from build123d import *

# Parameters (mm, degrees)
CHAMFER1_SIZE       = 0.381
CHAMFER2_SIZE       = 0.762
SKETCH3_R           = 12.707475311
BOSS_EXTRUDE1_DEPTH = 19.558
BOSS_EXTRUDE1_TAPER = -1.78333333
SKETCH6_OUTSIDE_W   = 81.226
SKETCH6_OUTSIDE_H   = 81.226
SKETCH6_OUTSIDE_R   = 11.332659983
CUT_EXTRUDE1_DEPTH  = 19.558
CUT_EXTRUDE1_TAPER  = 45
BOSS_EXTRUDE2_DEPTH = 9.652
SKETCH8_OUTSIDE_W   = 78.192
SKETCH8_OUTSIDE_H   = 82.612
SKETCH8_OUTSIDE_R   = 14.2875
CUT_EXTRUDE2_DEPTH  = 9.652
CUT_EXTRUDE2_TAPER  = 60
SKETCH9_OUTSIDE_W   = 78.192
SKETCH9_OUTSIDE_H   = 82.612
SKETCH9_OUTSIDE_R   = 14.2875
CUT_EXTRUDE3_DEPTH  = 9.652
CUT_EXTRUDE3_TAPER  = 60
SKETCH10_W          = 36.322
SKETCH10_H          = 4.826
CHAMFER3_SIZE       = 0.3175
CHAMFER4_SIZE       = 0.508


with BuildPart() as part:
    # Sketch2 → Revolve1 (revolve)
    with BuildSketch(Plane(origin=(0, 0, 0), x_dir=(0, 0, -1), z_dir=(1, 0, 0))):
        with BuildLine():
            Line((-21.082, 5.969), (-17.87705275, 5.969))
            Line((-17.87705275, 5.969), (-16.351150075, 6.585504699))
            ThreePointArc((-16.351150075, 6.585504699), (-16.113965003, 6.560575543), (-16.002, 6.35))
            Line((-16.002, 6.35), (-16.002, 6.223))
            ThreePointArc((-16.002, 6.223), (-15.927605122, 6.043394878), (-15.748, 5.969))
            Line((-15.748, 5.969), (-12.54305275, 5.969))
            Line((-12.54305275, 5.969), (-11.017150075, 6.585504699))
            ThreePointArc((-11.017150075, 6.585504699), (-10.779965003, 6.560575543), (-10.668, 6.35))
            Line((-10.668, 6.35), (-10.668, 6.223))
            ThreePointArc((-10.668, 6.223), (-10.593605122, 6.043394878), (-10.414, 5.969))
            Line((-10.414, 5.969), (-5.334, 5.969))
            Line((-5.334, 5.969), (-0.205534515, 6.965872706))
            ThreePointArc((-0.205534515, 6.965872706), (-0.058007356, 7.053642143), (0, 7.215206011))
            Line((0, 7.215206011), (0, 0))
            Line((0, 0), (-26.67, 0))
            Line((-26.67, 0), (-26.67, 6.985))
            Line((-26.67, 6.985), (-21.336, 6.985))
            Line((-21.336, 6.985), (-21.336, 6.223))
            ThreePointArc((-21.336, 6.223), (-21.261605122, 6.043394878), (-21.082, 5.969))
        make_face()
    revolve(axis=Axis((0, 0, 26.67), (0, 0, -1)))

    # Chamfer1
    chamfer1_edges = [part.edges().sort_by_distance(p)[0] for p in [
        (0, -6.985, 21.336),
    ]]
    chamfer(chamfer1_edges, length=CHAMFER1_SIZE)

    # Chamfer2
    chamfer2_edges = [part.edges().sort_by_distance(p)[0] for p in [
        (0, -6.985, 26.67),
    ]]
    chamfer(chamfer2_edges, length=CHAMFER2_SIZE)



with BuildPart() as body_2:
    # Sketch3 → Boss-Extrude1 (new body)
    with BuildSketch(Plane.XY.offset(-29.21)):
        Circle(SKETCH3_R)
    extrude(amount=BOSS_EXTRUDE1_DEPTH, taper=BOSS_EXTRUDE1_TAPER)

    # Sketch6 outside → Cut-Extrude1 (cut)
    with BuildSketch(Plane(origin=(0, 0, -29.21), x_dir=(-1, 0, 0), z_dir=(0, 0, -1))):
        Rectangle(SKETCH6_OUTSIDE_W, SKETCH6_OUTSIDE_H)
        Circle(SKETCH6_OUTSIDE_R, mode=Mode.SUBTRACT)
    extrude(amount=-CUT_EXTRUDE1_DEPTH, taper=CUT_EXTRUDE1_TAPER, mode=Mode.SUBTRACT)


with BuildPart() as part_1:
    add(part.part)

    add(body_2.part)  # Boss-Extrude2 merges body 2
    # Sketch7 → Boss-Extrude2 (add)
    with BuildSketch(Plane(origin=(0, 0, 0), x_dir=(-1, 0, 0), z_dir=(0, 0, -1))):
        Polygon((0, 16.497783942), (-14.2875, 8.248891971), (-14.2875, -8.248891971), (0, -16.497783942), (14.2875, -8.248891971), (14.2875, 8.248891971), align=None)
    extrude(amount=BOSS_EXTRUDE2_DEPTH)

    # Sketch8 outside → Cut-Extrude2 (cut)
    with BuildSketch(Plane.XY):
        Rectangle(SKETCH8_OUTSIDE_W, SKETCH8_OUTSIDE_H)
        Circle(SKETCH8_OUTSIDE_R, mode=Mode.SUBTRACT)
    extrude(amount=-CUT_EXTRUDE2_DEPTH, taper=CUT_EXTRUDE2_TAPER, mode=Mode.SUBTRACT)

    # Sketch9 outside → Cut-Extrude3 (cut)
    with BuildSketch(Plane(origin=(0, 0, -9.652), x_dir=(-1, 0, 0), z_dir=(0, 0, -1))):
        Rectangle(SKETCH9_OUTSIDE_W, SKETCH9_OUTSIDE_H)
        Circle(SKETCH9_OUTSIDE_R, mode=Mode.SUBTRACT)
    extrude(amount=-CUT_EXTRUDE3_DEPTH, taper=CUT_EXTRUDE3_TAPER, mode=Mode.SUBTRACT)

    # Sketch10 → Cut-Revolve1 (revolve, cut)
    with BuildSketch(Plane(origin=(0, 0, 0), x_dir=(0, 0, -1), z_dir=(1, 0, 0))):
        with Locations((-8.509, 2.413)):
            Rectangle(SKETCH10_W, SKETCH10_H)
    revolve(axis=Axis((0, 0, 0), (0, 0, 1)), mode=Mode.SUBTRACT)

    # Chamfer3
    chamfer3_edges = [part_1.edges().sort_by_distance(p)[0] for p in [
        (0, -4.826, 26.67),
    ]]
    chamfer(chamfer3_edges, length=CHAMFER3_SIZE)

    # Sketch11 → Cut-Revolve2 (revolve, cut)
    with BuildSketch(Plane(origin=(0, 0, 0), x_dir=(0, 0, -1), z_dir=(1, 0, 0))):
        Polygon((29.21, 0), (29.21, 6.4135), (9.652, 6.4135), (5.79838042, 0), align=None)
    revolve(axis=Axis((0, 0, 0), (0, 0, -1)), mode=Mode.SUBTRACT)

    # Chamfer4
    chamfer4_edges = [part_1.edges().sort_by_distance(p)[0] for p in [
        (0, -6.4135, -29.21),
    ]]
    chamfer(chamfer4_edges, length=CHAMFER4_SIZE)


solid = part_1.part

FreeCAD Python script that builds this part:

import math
import FreeCAD as App
import Part
import Sketcher

V = App.Vector
Q = App.Units.Quantity


def edges_at(feature, points):
    """Names of the edges that pass closest to the given points."""
    edges = feature.Shape.Edges
    near = lambda p: min(range(len(edges)), key=lambda i: edges[i].distToShape(Part.Vertex(*p))[0])
    return sorted({f"Edge{near(p) + 1}" for p in points})


def add_polygon(sketch, points):
    """Adds a closed chain of lines whose ends are joined by coincident constraints."""
    first, n = sketch.GeometryCount, len(points)
    for a, b in zip(points, points[1:] + points[:1]):
        sketch.addGeometry(Part.LineSegment(App.Vector(*a, 0), App.Vector(*b, 0)), False)
    for i in range(n):
        sketch.addConstraint(Sketcher.Constraint("Coincident", first + i, 2, first + (i + 1) % n, 1))

doc = App.newDocument("Part")
body = doc.addObject("PartDesign::Body", "Body")

sketch1 = body.newObject("Sketcher::SketchObject", "Sketch")
sketch1.AttachmentSupport = (doc.getObject("YZ_Plane"), [""])
sketch1.MapMode = "FlatFace"
sketch1.addGeometry([
    Part.LineSegment(V(5.97, 17.88, 0), V(5.97, 21.08, 0)),
    Part.ArcOfCircle(Part.Circle(V(6.22, 21.08, 0), V(0, 0, 1), 0.25), math.radians(90), math.radians(180)),
    Part.LineSegment(V(6.22, 21.34, 0), V(6.99, 21.34, 0)),
    Part.LineSegment(V(6.99, 21.34, 0), V(6.99, 26.67, 0)),
    Part.LineSegment(V(6.99, 26.67, 0), V(0, 26.67, 0)),
    Part.LineSegment(V(0, 26.67, 0), V(0, 0, 0)),
    Part.LineSegment(V(0, 0, 0), V(7.22, 0, 0)),
    Part.ArcOfCircle(Part.Circle(V(7.22, 0.25, 0), V(0, 0, 1), 0.25), math.radians(-169), math.radians(-90)),
    Part.LineSegment(V(6.97, 0.21, 0), V(5.97, 5.33, 0)),
    Part.LineSegment(V(5.97, 5.33, 0), V(5.97, 10.41, 0)),
    Part.ArcOfCircle(Part.Circle(V(6.22, 10.41, 0), V(0, 0, 1), 0.25), math.radians(90), math.radians(180)),
    Part.LineSegment(V(6.22, 10.67, 0), V(6.35, 10.67, 0)),
    Part.ArcOfCircle(Part.Circle(V(6.35, 10.92, 0), V(0, 0, 1), 0.25), math.radians(-90), math.radians(22)),
    Part.LineSegment(V(6.59, 11.02, 0), V(5.97, 12.54, 0)),
    Part.LineSegment(V(5.97, 12.54, 0), V(5.97, 15.75, 0)),
    Part.ArcOfCircle(Part.Circle(V(6.22, 15.75, 0), V(0, 0, 1), 0.25), math.radians(90), math.radians(180)),
    Part.LineSegment(V(6.22, 16, 0), V(6.35, 16, 0)),
    Part.ArcOfCircle(Part.Circle(V(6.35, 16.26, 0), V(0, 0, 1), 0.25), math.radians(-90), math.radians(22)),
    Part.LineSegment(V(6.59, 16.35, 0), V(5.97, 17.88, 0)),
], False)
sketch1.addConstraint([
    Sketcher.Constraint("Tangent", 0, 2, 1, 2),
    Sketcher.Constraint("Tangent", 1, 1, 2, 1),
    Sketcher.Constraint("Coincident", 2, 2, 3, 1),
    Sketcher.Constraint("Coincident", 3, 2, 4, 1),
    Sketcher.Constraint("Coincident", 4, 2, 5, 1),
    Sketcher.Constraint("Coincident", 5, 2, 6, 1),
    Sketcher.Constraint("Tangent", 6, 2, 7, 2),
    Sketcher.Constraint("Tangent", 7, 1, 8, 1),
    Sketcher.Constraint("Coincident", 8, 2, 9, 1),
    Sketcher.Constraint("Tangent", 9, 2, 10, 2),
    Sketcher.Constraint("Tangent", 10, 1, 11, 1),
    Sketcher.Constraint("Tangent", 11, 2, 12, 1),
    Sketcher.Constraint("Tangent", 12, 2, 13, 1),
    Sketcher.Constraint("Coincident", 13, 2, 14, 1),
    Sketcher.Constraint("Tangent", 14, 2, 15, 2),
    Sketcher.Constraint("Tangent", 15, 1, 16, 1),
    Sketcher.Constraint("Tangent", 16, 2, 17, 1),
    Sketcher.Constraint("Tangent", 17, 2, 18, 1),
    Sketcher.Constraint("Coincident", 18, 2, 0, 1),
    Sketcher.Constraint("Vertical", 0),
    Sketcher.Constraint("Horizontal", 2),
    Sketcher.Constraint("Vertical", 3),
    Sketcher.Constraint("Horizontal", 4),
    Sketcher.Constraint("Vertical", 5),
    Sketcher.Constraint("Horizontal", 6),
    Sketcher.Constraint("Vertical", 9),
    Sketcher.Constraint("Horizontal", 11),
    Sketcher.Constraint("Vertical", 14),
    Sketcher.Constraint("Horizontal", 16),
    Sketcher.Constraint("Coincident", 5, 2, -1, 1),
    Sketcher.Constraint("Equal", 1, 7),
    Sketcher.Constraint("Equal", 7, 10),
    Sketcher.Constraint("Equal", 10, 12),
    Sketcher.Constraint("Equal", 12, 15),
    Sketcher.Constraint("Equal", 15, 17),
    Sketcher.Constraint("Parallel", 13, 18),
    Sketcher.Constraint("Vertical", 1, 3, 10, 3),
    Sketcher.Constraint("Vertical", 10, 3, 15, 3),
    Sketcher.Constraint("Vertical", 12, 3, 17, 3),
    Sketcher.Constraint("Equal", 0, 14),
    Sketcher.Constraint("Radius", 1, Q("0.01 in")),
    Sketcher.Constraint("DistanceY", 9, 1, 9, 2, Q("0.2 in")),
    Sketcher.Constraint("Angle", 8, Q("101 deg")),
    Sketcher.Constraint("Angle", 13, Q("112 deg")),
    Sketcher.Constraint("DistanceX", 2, 1, 2, 2, Q("0.03 in")),
    Sketcher.Constraint("DistanceY", 3, 1, 3, 2, Q("0.21 in")),
    Sketcher.Constraint("DistanceY", 5, 2, 5, 1, Q("1.05 in")),
    Sketcher.Constraint("DistanceY", 7, 3, 10, 3, Q("0.4 in")),
    Sketcher.Constraint("DistanceX", 4, 2, 4, 1, Q("0.275 in")),
    Sketcher.Constraint("DistanceX", 11, 1, 11, 2, Q("0.005 in")),
])
revolution = body.newObject("PartDesign::Revolution", "Revolution")
revolution.Profile = sketch1
revolution.ReferenceAxis = (sketch1, ["V_Axis"])
revolution.Angle = 360
doc.recompute()

chamfer = body.newObject("PartDesign::Chamfer", "Chamfer")
chamfer.Base = (revolution, edges_at(revolution, [(0, -6.985, 21.336)]))
chamfer.Size = Q("0.015 in")
doc.recompute()

chamfer2 = body.newObject("PartDesign::Chamfer", "Chamfer001")
chamfer2.Base = (chamfer, edges_at(chamfer, [(0, -6.985, 26.67)]))
chamfer2.Size = Q("0.03 in")
body2 = doc.addObject("PartDesign::Body", "Body001")

sketch2 = body2.newObject("Sketcher::SketchObject", "Sketch001")
sketch2.AttachmentSupport = (doc.getObject("XY_Plane001"), [""])
sketch2.MapMode = "FlatFace"
sketch2.AttachmentOffset = App.Placement(V(0, 0, -1.15 * 25.4), App.Rotation())
sketch2.addGeometry(Part.Circle(V(0, 0, 0), V(0, 0, 1), 13), False)
sketch2.addConstraint([
    Sketcher.Constraint("Coincident", 0, 3, -1, 1),
    Sketcher.Constraint("Diameter", 0, 25.414951),
])
pad1 = body2.newObject("PartDesign::Pad", "Pad")
pad1.Profile = sketch2
pad1.Length = Q("0.77 in")
pad1.TaperAngle = 1.783333

sketch3 = body2.newObject("Sketcher::SketchObject", "Sketch002")
sketch3.AttachmentSupport = (doc.getObject("XY_Plane001"), [""])
sketch3.MapMode = "FlatFace"
sketch3.AttachmentOffset = App.Placement(V(0, 0, -1.15 * 25.4), App.Rotation())
add_polygon(sketch3, [(41, 41), (41, -41), (-41, -41), (-41, 41)])
sketch3.addGeometry(Part.Circle(V(0, 0, 0), V(0, 0, 1), 11), False)
sketch3.addConstraint([
    Sketcher.Constraint("Vertical", 0),
    Sketcher.Constraint("Horizontal", 1),
    Sketcher.Constraint("Vertical", 2),
    Sketcher.Constraint("Horizontal", 3),
    Sketcher.Constraint("Coincident", 4, 3, -1, 1),
    Sketcher.Constraint("Symmetric", 0, 2, 2, 2, -1, 1),
    Sketcher.Constraint("Equal", 3, 0),
    Sketcher.Constraint("Diameter", 4, 22.66532),
    Sketcher.Constraint("DistanceX", 1, 2, 1, 1, 81.226),
])
pocket1 = body2.newObject("PartDesign::Pocket", "Pocket")
pocket1.Profile = sketch3
pocket1.Length = Q("0.77 in")
pocket1.Reversed = True
pocket1.TaperAngle = 45
body.AllowCompound = True
doc.recompute()

boolean = body.newObject("PartDesign::Boolean", "Boolean")
boolean.Type = "Fuse"
boolean.addObjects([body2])

sketch4 = body.newObject("Sketcher::SketchObject", "Sketch003")
sketch4.AttachmentSupport = (doc.getObject("XY_Plane"), [""])
sketch4.MapMode = "FlatFace"
add_polygon(sketch4, [(0, 16), (14, 8), (14, -8), (0, -16), (-14, -8), (-14, 8)])
sketch4.addConstraint([
    Sketcher.Constraint("Vertical", 1),
    Sketcher.Constraint("Vertical", 4),
    Sketcher.Constraint("Symmetric", 0, 2, 3, 2, -1, 1),
    Sketcher.Constraint("Symmetric", 2, 2, 5, 2, -1, 1),
    Sketcher.Constraint("PointOnObject", 2, 2, -2),
    Sketcher.Constraint("Parallel", 2, 5),
    Sketcher.Constraint("Horizontal", 1, 2, 3, 2),
    Sketcher.Constraint("Angle", 0, Q("-30 deg")),
    Sketcher.Constraint("DistanceX", -1, 1, 0, 2, Q("0.5625 in")),
    Sketcher.Constraint("DistanceY", 1, 2, 1, 1, 16.497784),
])
pad2 = body.newObject("PartDesign::Pad", "Pad001")
pad2.Profile = sketch4
pad2.Length = Q("0.38 in")
pad2.Reversed = True

sketch5 = body.newObject("Sketcher::SketchObject", "Sketch004")
sketch5.AttachmentSupport = (doc.getObject("XY_Plane"), [""])
sketch5.MapMode = "FlatFace"
add_polygon(sketch5, [(-39, 41), (-39, -41), (39, -41), (39, 41)])
sketch5.addGeometry(Part.Circle(V(0, 0, 0), V(0, 0, 1), 14), False)
sketch5.addConstraint([
    Sketcher.Constraint("Vertical", 0),
    Sketcher.Constraint("Horizontal", 1),
    Sketcher.Constraint("Vertical", 2),
    Sketcher.Constraint("Horizontal", 3),
    Sketcher.Constraint("Coincident", 4, 3, -1, 1),
    Sketcher.Constraint("Symmetric", 0, 2, 2, 2, -1, 1),
    Sketcher.Constraint("Diameter", 4, Q("1.125 in")),
    Sketcher.Constraint("DistanceX", 1, 1, 1, 2, 78.192),
    Sketcher.Constraint("DistanceY", 0, 2, 0, 1, 82.612),
])
pocket2 = body.newObject("PartDesign::Pocket", "Pocket001")
pocket2.Profile = sketch5
pocket2.Length = Q("0.38 in")
pocket2.TaperAngle = 60

sketch6 = body.newObject("Sketcher::SketchObject", "Sketch005")
sketch6.AttachmentSupport = (doc.getObject("XY_Plane"), [""])
sketch6.MapMode = "FlatFace"
sketch6.AttachmentOffset = App.Placement(V(0, 0, -0.38 * 25.4), App.Rotation())
add_polygon(sketch6, [(39, 41), (39, -41), (-39, -41), (-39, 41)])
sketch6.addGeometry(Part.Circle(V(0, 0, 0), V(0, 0, 1), 14), False)
sketch6.addConstraint([
    Sketcher.Constraint("Vertical", 0),
    Sketcher.Constraint("Horizontal", 1),
    Sketcher.Constraint("Vertical", 2),
    Sketcher.Constraint("Horizontal", 3),
    Sketcher.Constraint("Coincident", 4, 3, -1, 1),
    Sketcher.Constraint("Symmetric", 0, 2, 2, 2, -1, 1),
    Sketcher.Constraint("Diameter", 4, Q("1.125 in")),
    Sketcher.Constraint("DistanceX", 1, 2, 1, 1, 78.192),
    Sketcher.Constraint("DistanceY", 0, 2, 0, 1, 82.612),
])
pocket3 = body.newObject("PartDesign::Pocket", "Pocket002")
pocket3.Profile = sketch6
pocket3.Length = Q("0.38 in")
pocket3.Reversed = True
pocket3.TaperAngle = 60

sketch7 = body.newObject("Sketcher::SketchObject", "Sketch006")
sketch7.AttachmentSupport = (doc.getObject("YZ_Plane"), [""])
sketch7.MapMode = "FlatFace"
add_polygon(sketch7, [(4.8, 26.7), (0, 26.7), (0, -9.7), (4.8, -9.7)])
sketch7.addConstraint([
    Sketcher.Constraint("Horizontal", 0),
    Sketcher.Constraint("Vertical", 1),
    Sketcher.Constraint("Horizontal", 2),
    Sketcher.Constraint("Vertical", 3),
    Sketcher.Constraint("PointOnObject", 0, 2, -2),
    Sketcher.Constraint("DistanceX", 0, 2, 0, 1, Q("0.19 in")),
    Sketcher.Constraint("DistanceY", 1, 2, 1, 1, Q("1.43 in")),
    Sketcher.Constraint("DistanceY", -1, 1, 0, 2, Q("1.05 in")),
])
groove = body.newObject("PartDesign::Groove", "Groove")
groove.Profile = sketch7
groove.ReferenceAxis = (sketch7, ["V_Axis"])
groove.Angle = 360
doc.recompute()

chamfer3 = body.newObject("PartDesign::Chamfer", "Chamfer002")
chamfer3.Base = (groove, edges_at(groove, [(0, -4.826, 26.67)]))
chamfer3.Size = Q("0.0125 in")

sketch8 = body.newObject("Sketcher::SketchObject", "Sketch007")
sketch8.AttachmentSupport = (doc.getObject("YZ_Plane"), [""])
sketch8.MapMode = "FlatFace"
add_polygon(sketch8, [(0, -29), (6, -29), (6, -10), (0, -6)])
sketch8.addConstraint([
    Sketcher.Constraint("Horizontal", 0),
    Sketcher.Constraint("Vertical", 1),
    Sketcher.Constraint("Vertical", 3),
    Sketcher.Constraint("PointOnObject", 2, 2, -2),
    Sketcher.Constraint("Angle", 2, Q("149 deg")),
    Sketcher.Constraint("DistanceY", 1, 1, 1, 2, Q("0.77 in")),
    Sketcher.Constraint("DistanceY", 0, 2, -1, 1, Q("1.15 in")),
    Sketcher.Constraint("DistanceX", 0, 1, 0, 2, Q("0.2525 in")),
])
groove2 = body.newObject("PartDesign::Groove", "Groove001")
groove2.Profile = sketch8
groove2.ReferenceAxis = (sketch8, ["V_Axis"])
groove2.Angle = 360
doc.recompute()

chamfer4 = body.newObject("PartDesign::Chamfer", "Chamfer003")
chamfer4.Base = (groove2, edges_at(groove2, [(0, -6.413, -29.21)]))
chamfer4.Size = Q("0.02 in")

doc.recompute()
